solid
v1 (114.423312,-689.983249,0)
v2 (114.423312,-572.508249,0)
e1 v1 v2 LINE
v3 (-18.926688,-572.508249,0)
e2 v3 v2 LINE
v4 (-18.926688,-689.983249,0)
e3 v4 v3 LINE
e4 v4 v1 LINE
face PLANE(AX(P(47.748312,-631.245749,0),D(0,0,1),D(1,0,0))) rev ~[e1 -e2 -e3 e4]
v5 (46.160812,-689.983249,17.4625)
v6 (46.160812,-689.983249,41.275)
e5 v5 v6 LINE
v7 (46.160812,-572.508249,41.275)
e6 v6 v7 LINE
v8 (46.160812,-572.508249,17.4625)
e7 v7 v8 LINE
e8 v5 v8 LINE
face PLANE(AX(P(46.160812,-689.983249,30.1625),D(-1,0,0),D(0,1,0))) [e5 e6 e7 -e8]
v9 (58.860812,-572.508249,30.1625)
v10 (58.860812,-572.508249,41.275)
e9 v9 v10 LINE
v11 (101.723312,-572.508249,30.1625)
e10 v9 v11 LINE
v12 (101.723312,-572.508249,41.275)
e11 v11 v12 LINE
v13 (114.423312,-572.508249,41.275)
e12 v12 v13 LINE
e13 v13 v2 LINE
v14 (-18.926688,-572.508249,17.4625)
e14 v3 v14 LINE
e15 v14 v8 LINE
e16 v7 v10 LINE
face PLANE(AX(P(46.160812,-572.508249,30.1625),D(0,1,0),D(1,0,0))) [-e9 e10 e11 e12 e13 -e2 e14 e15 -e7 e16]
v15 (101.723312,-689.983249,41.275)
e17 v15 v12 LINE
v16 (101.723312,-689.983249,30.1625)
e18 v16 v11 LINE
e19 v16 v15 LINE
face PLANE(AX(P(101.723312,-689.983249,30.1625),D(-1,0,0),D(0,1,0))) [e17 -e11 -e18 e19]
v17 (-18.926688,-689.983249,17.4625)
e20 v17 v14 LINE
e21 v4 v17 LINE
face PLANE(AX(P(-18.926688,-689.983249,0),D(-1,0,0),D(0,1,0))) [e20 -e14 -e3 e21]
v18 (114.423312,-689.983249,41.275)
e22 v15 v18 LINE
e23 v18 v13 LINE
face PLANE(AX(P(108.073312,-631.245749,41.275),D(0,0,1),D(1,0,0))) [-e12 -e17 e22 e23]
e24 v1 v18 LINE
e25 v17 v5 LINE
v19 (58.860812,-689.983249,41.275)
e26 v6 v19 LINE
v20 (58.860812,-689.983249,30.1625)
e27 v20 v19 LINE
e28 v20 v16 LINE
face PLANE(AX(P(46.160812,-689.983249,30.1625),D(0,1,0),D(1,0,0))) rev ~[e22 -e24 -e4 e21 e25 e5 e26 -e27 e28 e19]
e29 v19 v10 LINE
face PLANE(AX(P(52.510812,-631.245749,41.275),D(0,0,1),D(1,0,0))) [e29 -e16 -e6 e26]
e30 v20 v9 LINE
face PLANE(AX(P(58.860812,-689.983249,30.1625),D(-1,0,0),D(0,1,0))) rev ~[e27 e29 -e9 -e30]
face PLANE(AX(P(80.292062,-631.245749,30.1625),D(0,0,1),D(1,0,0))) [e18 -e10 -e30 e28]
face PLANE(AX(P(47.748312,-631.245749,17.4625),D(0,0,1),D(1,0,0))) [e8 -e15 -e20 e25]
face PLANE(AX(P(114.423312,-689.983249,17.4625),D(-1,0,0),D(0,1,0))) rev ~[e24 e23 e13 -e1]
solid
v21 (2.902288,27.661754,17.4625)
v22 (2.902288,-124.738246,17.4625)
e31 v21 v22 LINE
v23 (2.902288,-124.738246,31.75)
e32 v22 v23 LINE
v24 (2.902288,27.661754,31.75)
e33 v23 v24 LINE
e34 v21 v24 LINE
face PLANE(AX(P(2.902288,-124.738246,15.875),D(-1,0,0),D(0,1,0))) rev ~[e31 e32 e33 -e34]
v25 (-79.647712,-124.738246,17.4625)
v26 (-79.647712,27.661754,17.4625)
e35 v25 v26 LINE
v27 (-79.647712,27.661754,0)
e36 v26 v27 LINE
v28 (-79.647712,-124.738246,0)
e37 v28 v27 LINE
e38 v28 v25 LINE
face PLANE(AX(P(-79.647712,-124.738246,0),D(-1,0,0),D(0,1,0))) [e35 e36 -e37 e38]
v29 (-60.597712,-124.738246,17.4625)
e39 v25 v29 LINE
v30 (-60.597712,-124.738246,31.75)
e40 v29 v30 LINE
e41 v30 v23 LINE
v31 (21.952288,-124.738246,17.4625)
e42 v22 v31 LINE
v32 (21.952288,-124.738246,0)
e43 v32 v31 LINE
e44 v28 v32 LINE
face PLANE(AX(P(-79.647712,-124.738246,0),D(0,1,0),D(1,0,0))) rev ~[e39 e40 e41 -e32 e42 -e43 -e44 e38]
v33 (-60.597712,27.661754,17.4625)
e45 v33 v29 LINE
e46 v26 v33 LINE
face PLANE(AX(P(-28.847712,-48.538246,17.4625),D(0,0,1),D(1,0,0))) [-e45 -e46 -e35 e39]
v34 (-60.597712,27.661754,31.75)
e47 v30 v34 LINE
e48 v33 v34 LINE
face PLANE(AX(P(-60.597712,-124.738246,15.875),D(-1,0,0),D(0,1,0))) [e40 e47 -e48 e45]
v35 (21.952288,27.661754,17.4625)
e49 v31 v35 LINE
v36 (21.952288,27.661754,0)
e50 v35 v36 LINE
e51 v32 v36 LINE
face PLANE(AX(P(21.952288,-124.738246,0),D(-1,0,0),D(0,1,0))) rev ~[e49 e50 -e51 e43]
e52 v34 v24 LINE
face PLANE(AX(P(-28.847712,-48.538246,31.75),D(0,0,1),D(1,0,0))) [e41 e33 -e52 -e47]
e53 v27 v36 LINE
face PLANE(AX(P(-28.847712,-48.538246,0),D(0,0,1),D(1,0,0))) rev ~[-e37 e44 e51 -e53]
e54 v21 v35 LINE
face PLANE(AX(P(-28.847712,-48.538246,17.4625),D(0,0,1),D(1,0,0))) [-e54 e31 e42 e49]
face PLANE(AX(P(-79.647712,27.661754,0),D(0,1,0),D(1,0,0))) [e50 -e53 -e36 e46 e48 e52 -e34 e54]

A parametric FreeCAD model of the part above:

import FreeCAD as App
import Part
import Sketcher
Q = App.Units.Quantity

doc = App.newDocument("Part")
body = doc.addObject("PartDesign::Body", "Body")

# Sketch on XY plane
sketch1 = doc.addObject("Sketcher::SketchObject", "Sketch")
body.addObject(sketch1)
sketch1.AttachmentSupport = (doc.XY_Plane, [""])
sketch1.MapMode = "FlatFace"
sketch1.addGeometry([
    Part.LineSegment(App.Vector(-80, 28, 0), App.Vector(-80, -125, 0)),
    Part.LineSegment(App.Vector(-80, -125, 0), App.Vector(22, -125, 0)),
    Part.LineSegment(App.Vector(22, -125, 0), App.Vector(22, 28, 0)),
    Part.LineSegment(App.Vector(22, 28, 0), App.Vector(-80, 28, 0)),
], False)
sketch1.addConstraint([
    Sketcher.Constraint("Coincident", 0, 2, 1, 1),
    Sketcher.Constraint("Coincident", 1, 2, 2, 1),
    Sketcher.Constraint("Coincident", 2, 2, 3, 1),
    Sketcher.Constraint("Coincident", 3, 2, 0, 1),
    Sketcher.Constraint("Vertical", 0),
    Sketcher.Constraint("Horizontal", 1),
    Sketcher.Constraint("Vertical", 2),
    Sketcher.Constraint("Horizontal", 3),
    Sketcher.Constraint("DistanceX", 1, 1, 1, 2, Q("4 in")),
    Sketcher.Constraint("DistanceY", 0, 2, 0, 1, Q("6 in")),
    Sketcher.Constraint("DistanceX", 0, 2, -1, 1, Q("79.647712 mm")),
    Sketcher.Constraint("DistanceY", 0, 2, -1, 1, Q("124.738246 mm")),
])
pad1 = doc.addObject("PartDesign::Pad", "Pad")
body.addObject(pad1)
pad1.Profile = sketch1
pad1.Length = Q("0.625 in")

# Sketch on XY plane
sketch2 = doc.addObject("Sketcher::SketchObject", "Sketch001")
body.addObject(sketch2)
sketch2.AttachmentSupport = (doc.XY_Plane, [""])
sketch2.MapMode = "FlatFace"
sketch2.addGeometry([
    Part.LineSegment(App.Vector(-80, 28, 0), App.Vector(-80, -125, 0)),
    Part.LineSegment(App.Vector(-80, -125, 0), App.Vector(22, -125, 0)),
    Part.LineSegment(App.Vector(22, -125, 0), App.Vector(22, 28, 0)),
    Part.LineSegment(App.Vector(22, 28, 0), App.Vector(-80, 28, 0)),
], False)
sketch2.addConstraint([
    Sketcher.Constraint("Coincident", 0, 2, 1, 1),
    Sketcher.Constraint("Coincident", 1, 2, 2, 1),
    Sketcher.Constraint("Coincident", 2, 2, 3, 1),
    Sketcher.Constraint("Coincident", 3, 2, 0, 1),
    Sketcher.Constraint("Vertical", 0),
    Sketcher.Constraint("Horizontal", 1),
    Sketcher.Constraint("Vertical", 2),
    Sketcher.Constraint("Horizontal", 3),
    Sketcher.Constraint("DistanceX", 1, 1, 1, 2, Q("4 in")),
    Sketcher.Constraint("DistanceY", 0, 2, 0, 1, Q("6 in")),
    Sketcher.Constraint("DistanceX", 0, 2, -1, 1, Q("79.647712 mm")),
    Sketcher.Constraint("DistanceY", 0, 2, -1, 1, Q("124.738246 mm")),
])
pad2 = doc.addObject("PartDesign::Pad", "Pad001")
body.addObject(pad2)
pad2.Profile = sketch2
pad2.Length = Q("0.6875 in")

# Sketch on XY plane
sketch3 = doc.addObject("Sketcher::SketchObject", "Sketch002")
body.addObject(sketch3)
sketch3.AttachmentSupport = (doc.XY_Plane, [""])
sketch3.MapMode = "FlatFace"
sketch3.AttachmentOffset = App.Placement(App.Vector(0, 0, 0.625 * 25.4), App.Rotation())
sketch3.addGeometry([
    Part.LineSegment(App.Vector(-61, 28, 0), App.Vector(-61, -125, 0)),
    Part.LineSegment(App.Vector(-61, -125, 0), App.Vector(3, -125, 0)),
    Part.LineSegment(App.Vector(3, -125, 0), App.Vector(3, 28, 0)),
    Part.LineSegment(App.Vector(3, 28, 0), App.Vector(-61, 28, 0)),
], False)
sketch3.addConstraint([
    Sketcher.Constraint("Coincident", 0, 2, 1, 1),
    Sketcher.Constraint("Coincident", 1, 2, 2, 1),
    Sketcher.Constraint("Coincident", 2, 2, 3, 1),
    Sketcher.Constraint("Coincident", 3, 2, 0, 1),
    Sketcher.Constraint("Vertical", 0),
    Sketcher.Constraint("Horizontal", 1),
    Sketcher.Constraint("Vertical", 2),
    Sketcher.Constraint("Horizontal", 3),
    Sketcher.Constraint("DistanceY", 0, 2, 0, 1, Q("6 in")),
    Sketcher.Constraint("DistanceX", 1, 1, 1, 2, Q("2.5 in")),
    Sketcher.Constraint("DistanceX", 0, 2, -1, 1, Q("60.597712 mm")),
    Sketcher.Constraint("DistanceY", 0, 2, -1, 1, Q("124.738246 mm")),
])
pad3 = doc.addObject("PartDesign::Pad", "Pad002")
body.addObject(pad3)
pad3.Profile = sketch3
pad3.Length = Q("0.625 in")
body2 = doc.addObject("PartDesign::Body", "Body001")

# Sketch on XY plane
sketch4 = doc.addObject("Sketcher::SketchObject", "Sketch003")
body2.addObject(sketch4)
sketch4.AttachmentSupport = (doc.getObject("XY_Plane001"), [""])
sketch4.MapMode = "FlatFace"
sketch4.addGeometry([
    Part.LineSegment(App.Vector(-19, -573, 0), App.Vector(-19, -690, 0)),
    Part.LineSegment(App.Vector(-19, -690, 0), App.Vector(114, -690, 0)),
    Part.LineSegment(App.Vector(114, -690, 0), App.Vector(114, -573, 0)),
    Part.LineSegment(App.Vector(114, -573, 0), App.Vector(-19, -573, 0)),
], False)
sketch4.addConstraint([
    Sketcher.Constraint("Coincident", 0, 2, 1, 1),
    Sketcher.Constraint("Coincident", 1, 2, 2, 1),
    Sketcher.Constraint("Coincident", 2, 2, 3, 1),
    Sketcher.Constraint("Coincident", 3, 2, 0, 1),
    Sketcher.Constraint("Vertical", 0),
    Sketcher.Constraint("Horizontal", 1),
    Sketcher.Constraint("Vertical", 2),
    Sketcher.Constraint("Horizontal", 3),
    Sketcher.Constraint("DistanceX", 1, 1, 1, 2, Q("5.25 in")),
    Sketcher.Constraint("DistanceY", 0, 2, 0, 1, Q("4.625 in")),
    Sketcher.Constraint("DistanceY", 0, 2, -1, 1, Q("689.983249 mm")),
    Sketcher.Constraint("DistanceX", 0, 2, -1, 1, Q("18.926688 mm")),
])
pad4 = doc.addObject("PartDesign::Pad", "Pad003")
body2.addObject(pad4)
pad4.Profile = sketch4
pad4.Length = Q("0.6875 in")

# Sketch on XY plane
sketch5 = doc.addObject("Sketcher::SketchObject", "Sketch004")
body2.addObject(sketch5)
sketch5.AttachmentSupport = (doc.getObject("XY_Plane001"), [""])
sketch5.MapMode = "FlatFace"
sketch5.AttachmentOffset = App.Placement(App.Vector(0, 0, 0.6875 * 25.4), App.Rotation())
sketch5.addGeometry([
    Part.LineSegment(App.Vector(46, -573, 0), App.Vector(46, -690, 0)),
    Part.LineSegment(App.Vector(46, -690, 0), App.Vector(114, -690, 0)),
    Part.LineSegment(App.Vector(114, -690, 0), App.Vector(114, -573, 0)),
    Part.LineSegment(App.Vector(114, -573, 0), App.Vector(46, -573, 0)),
], False)
sketch5.addConstraint([
    Sketcher.Constraint("Coincident", 0, 2, 1, 1),
    Sketcher.Constraint("Coincident", 1, 2, 2, 1),
    Sketcher.Constraint("Coincident", 2, 2, 3, 1),
    Sketcher.Constraint("Coincident", 3, 2, 0, 1),
    Sketcher.Constraint("Vertical", 0),
    Sketcher.Constraint("Horizontal", 1),
    Sketcher.Constraint("Vertical", 2),
    Sketcher.Constraint("Horizontal", 3),
    Sketcher.Constraint("DistanceX", 1, 1, 1, 2, Q("2.6875 in")),
    Sketcher.Constraint("DistanceY", 0, 2, 0, 1, Q("4.625 in")),
    Sketcher.Constraint("DistanceY", 0, 2, -1, 1, Q("689.983249 mm")),
    Sketcher.Constraint("DistanceX", -1, 1, 0, 2, Q("46.160812 mm")),
])
pad5 = doc.addObject("PartDesign::Pad", "Pad004")
body2.addObject(pad5)
pad5.Profile = sketch5
pad5.Length = Q("0.5 in")

# Sketch on XY plane
sketch6 = doc.addObject("Sketcher::SketchObject", "Sketch005")
body2.addObject(sketch6)
sketch6.AttachmentSupport = (doc.getObject("XY_Plane001"), [""])
sketch6.MapMode = "FlatFace"
sketch6.AttachmentOffset = App.Placement(App.Vector(0, 0, 1.1875 * 25.4), App.Rotation())
sketch6.addGeometry([
    Part.LineSegment(App.Vector(46, -573, 0), App.Vector(46, -690, 0)),  # 0
    Part.LineSegment(App.Vector(46, -690, 0), App.Vector(59, -690, 0)),  # 1
    Part.LineSegment(App.Vector(59, -690, 0), App.Vector(59, -573, 0)),  # 2
    Part.LineSegment(App.Vector(59, -573, 0), App.Vector(46, -573, 0)),  # 3
    Part.LineSegment(App.Vector(102, -573, 0), App.Vector(102, -690, 0)),  # 4
    Part.LineSegment(App.Vector(102, -690, 0), App.Vector(114, -690, 0)),  # 5
    Part.LineSegment(App.Vector(114, -690, 0), App.Vector(114, -573, 0)),  # 6
    Part.LineSegment(App.Vector(114, -573, 0), App.Vector(102, -573, 0)),  # 7
], False)
sketch6.addConstraint([
    Sketcher.Constraint("Coincident", 0, 2, 1, 1),
    Sketcher.Constraint("Coincident", 1, 2, 2, 1),
    Sketcher.Constraint("Coincident", 2, 2, 3, 1),
    Sketcher.Constraint("Coincident", 3, 2, 0, 1),
    Sketcher.Constraint("Coincident", 4, 2, 5, 1),
    Sketcher.Constraint("Coincident", 5, 2, 6, 1),
    Sketcher.Constraint("Coincident", 6, 2, 7, 1),
    Sketcher.Constraint("Coincident", 7, 2, 4, 1),
    Sketcher.Constraint("Vertical", 0),
    Sketcher.Constraint("Horizontal", 1),
    Sketcher.Constraint("Vertical", 2),
    Sketcher.Constraint("Horizontal", 3),
    Sketcher.Constraint("Vertical", 4),
    Sketcher.Constraint("Horizontal", 5),
    Sketcher.Constraint("Vertical", 6),
    Sketcher.Constraint("Horizontal", 7),
    Sketcher.Constraint("Horizontal", 1, 2, 4, 2),
    Sketcher.Constraint("Horizontal", 3, 2, 6, 2),
    Sketcher.Constraint("Equal", 3, 5),
    Sketcher.Constraint("DistanceX", 1, 1, 1, 2, Q("0.5 in")),
    Sketcher.Constraint("DistanceY", 0, 2, 0, 1, Q("4.625 in")),
    Sketcher.Constraint("DistanceX", 1, 2, 4, 2, Q("1.6875 in")),
    Sketcher.Constraint("DistanceY", 0, 2, -1, 1, Q("689.983249 mm")),
    Sketcher.Constraint("DistanceX", -1, 1, 0, 2, Q("46.160812 mm")),
])
pad6 = doc.addObject("PartDesign::Pad", "Pad005")
body2.addObject(pad6)
pad6.Profile = sketch6
pad6.Length = Q("0.4375 in")

doc.recompute()
